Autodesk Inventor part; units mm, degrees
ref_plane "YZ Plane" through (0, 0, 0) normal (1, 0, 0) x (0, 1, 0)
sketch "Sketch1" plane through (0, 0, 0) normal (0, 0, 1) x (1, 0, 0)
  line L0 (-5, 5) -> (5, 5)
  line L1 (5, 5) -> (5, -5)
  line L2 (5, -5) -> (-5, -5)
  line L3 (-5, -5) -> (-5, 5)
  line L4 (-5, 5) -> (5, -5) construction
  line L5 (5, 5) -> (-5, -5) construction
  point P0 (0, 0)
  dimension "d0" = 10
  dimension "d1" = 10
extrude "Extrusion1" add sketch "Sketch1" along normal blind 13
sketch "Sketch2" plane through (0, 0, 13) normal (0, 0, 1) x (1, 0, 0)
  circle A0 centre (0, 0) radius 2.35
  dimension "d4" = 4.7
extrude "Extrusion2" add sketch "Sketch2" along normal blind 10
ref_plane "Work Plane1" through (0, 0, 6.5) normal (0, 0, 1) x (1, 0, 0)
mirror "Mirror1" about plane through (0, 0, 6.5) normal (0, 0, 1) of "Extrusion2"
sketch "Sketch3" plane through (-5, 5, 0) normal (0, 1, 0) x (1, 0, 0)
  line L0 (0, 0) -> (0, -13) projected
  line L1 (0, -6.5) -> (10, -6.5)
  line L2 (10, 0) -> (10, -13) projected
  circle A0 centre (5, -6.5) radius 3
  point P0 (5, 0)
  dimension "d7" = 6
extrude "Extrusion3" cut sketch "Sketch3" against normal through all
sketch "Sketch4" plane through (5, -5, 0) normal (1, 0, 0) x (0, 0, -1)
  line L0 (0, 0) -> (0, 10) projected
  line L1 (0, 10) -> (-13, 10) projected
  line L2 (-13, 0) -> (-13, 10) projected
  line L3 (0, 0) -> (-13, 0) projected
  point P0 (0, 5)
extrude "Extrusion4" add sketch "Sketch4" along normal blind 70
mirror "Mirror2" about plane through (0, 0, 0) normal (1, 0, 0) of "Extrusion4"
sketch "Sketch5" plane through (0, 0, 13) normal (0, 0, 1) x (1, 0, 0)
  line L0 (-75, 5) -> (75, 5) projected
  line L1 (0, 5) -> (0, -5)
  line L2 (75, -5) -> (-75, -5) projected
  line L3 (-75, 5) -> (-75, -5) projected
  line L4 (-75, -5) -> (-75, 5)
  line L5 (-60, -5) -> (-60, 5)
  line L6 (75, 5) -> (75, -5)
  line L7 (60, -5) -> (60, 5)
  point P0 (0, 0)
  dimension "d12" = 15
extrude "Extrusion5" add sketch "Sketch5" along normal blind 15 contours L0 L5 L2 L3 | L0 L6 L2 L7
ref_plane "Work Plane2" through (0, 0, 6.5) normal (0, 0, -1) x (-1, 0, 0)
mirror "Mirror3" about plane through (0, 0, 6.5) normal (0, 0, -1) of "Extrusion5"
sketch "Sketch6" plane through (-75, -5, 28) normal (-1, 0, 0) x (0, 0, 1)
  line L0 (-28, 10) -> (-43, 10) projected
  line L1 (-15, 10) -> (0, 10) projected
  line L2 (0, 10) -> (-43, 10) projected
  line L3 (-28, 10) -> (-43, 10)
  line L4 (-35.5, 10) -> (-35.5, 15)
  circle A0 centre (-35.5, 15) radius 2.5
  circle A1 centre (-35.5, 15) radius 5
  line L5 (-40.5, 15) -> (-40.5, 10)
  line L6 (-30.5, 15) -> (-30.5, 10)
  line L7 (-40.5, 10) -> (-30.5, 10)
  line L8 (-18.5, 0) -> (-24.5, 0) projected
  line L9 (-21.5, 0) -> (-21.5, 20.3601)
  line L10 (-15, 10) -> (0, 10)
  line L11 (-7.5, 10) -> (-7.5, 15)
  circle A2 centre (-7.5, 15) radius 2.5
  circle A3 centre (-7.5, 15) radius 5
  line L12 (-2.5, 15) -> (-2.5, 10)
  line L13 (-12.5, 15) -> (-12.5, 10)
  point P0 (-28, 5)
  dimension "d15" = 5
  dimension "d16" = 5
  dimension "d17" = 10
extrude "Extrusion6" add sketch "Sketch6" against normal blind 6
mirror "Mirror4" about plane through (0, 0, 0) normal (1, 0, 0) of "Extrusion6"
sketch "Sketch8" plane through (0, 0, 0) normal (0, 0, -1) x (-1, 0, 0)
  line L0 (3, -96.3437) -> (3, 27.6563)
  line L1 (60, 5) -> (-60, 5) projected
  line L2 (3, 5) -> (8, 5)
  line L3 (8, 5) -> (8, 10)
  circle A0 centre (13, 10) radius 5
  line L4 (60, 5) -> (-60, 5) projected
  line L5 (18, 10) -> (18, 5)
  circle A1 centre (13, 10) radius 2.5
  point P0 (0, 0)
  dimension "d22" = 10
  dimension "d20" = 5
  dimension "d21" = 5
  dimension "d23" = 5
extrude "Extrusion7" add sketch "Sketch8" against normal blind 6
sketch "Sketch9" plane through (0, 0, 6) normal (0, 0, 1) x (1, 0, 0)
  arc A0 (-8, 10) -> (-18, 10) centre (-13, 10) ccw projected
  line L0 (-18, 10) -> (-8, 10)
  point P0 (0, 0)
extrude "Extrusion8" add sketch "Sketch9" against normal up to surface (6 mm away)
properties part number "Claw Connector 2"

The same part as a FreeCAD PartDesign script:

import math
import FreeCAD as App
import Part
import Sketcher

V = App.Vector


def add_polygon(sketch, points):
    """Adds a closed chain of lines whose ends are joined by coincident constraints."""
    first, n = sketch.GeometryCount, len(points)
    for a, b in zip(points, points[1:] + points[:1]):
        sketch.addGeometry(Part.LineSegment(App.Vector(*a, 0), App.Vector(*b, 0)), False)
    for i in range(n):
        sketch.addConstraint(Sketcher.Constraint("Coincident", first + i, 2, first + (i + 1) % n, 1))

doc = App.newDocument("Part")
body = doc.addObject("PartDesign::Body", "Body")

sketch1 = body.newObject("Sketcher::SketchObject", "Sketch")
sketch1.AttachmentSupport = (doc.getObject("XY_Plane"), [""])
sketch1.MapMode = "FlatFace"
add_polygon(sketch1, [(5, 5), (-5, 5), (-5, -5), (5, -5)])
sketch1.addConstraint([
    Sketcher.Constraint("Horizontal", 0),
    Sketcher.Constraint("Vertical", 1),
    Sketcher.Constraint("Horizontal", 2),
    Sketcher.Constraint("Vertical", 3),
    Sketcher.Constraint("Symmetric", 0, 2, 2, 2, -1, 1),
    Sketcher.Constraint("Equal", 2, 1),
    Sketcher.Constraint("DistanceX", 0, 2, 0, 1, 10.0),
])
pad1 = body.newObject("PartDesign::Pad", "Pad")
pad1.Profile = sketch1
pad1.Length = 13

sketch2 = body.newObject("Sketcher::SketchObject", "Sketch001")
sketch2.AttachmentSupport = (doc.getObject("XY_Plane"), [""])
sketch2.MapMode = "FlatFace"
sketch2.AttachmentOffset = App.Placement(V(0, 0, 13), App.Rotation())
sketch2.addGeometry(Part.Circle(V(0, 0, 0), V(0, 0, 1), 2.4), False)
sketch2.addConstraint([
    Sketcher.Constraint("Coincident", 0, 3, -1, 1),
    Sketcher.Constraint("Diameter", 0, 4.7),
])
pad2 = body.newObject("PartDesign::Pad", "Pad001")
pad2.Profile = sketch2
pad2.Length = 10
doc.recompute()

datumplane = body.newObject("PartDesign::Plane", "DatumPlane")
datumplane.AttachmentSupport = (doc.getObject("XY_Plane"), [""])
datumplane.MapMode = "FlatFace"
datumplane.AttachmentOffset = App.Placement(V(0, 0, 6.5), App.Rotation())
mirrored = body.newObject("PartDesign::Mirrored", "Mirrored")
mirrored.Originals = [pad2]
mirrored.MirrorPlane = (datumplane, [""])
body.Tip = mirrored

sketch3 = body.newObject("Sketcher::SketchObject", "Sketch002")
sketch3.AttachmentSupport = (doc.getObject("XZ_Plane"), [""])
sketch3.MapMode = "FlatFace"
sketch3.AttachmentOffset = App.Placement(V(0, 0, -5), App.Rotation())
sketch3.addGeometry(Part.Circle(V(0, 6.5, 0), V(0, 0, 1), 3), False)
sketch3.addConstraint([
    Sketcher.Constraint("PointOnObject", 0, 3, -2),
    Sketcher.Constraint("Diameter", 0, 6.0),
    Sketcher.Constraint("DistanceY", -1, 1, 0, 3, 6.5),
])
pocket1 = body.newObject("PartDesign::Pocket", "Pocket")
pocket1.Profile = sketch3
pocket1.Type = "ThroughAll"
pocket1.Reversed = True

sketch4 = body.newObject("Sketcher::SketchObject", "Sketch003")
sketch4.AttachmentSupport = (doc.getObject("YZ_Plane"), [""])
sketch4.MapMode = "FlatFace"
sketch4.AttachmentOffset = App.Placement(V(0, 0, 5), App.Rotation())
add_polygon(sketch4, [(-5, 13), (-5, 0), (5, 0), (5, 13)])
sketch4.addConstraint([
    Sketcher.Constraint("Vertical", 0),
    Sketcher.Constraint("Horizontal", 1),
    Sketcher.Constraint("Vertical", 2),
    Sketcher.Constraint("Horizontal", 3),
    Sketcher.Constraint("Symmetric", 0, 2, 1, 2, -1, 1),
    Sketcher.Constraint("DistanceX", 1, 1, 1, 2, 10.0),
    Sketcher.Constraint("DistanceY", 0, 2, 0, 1, 13.0),
])
pad3 = body.newObject("PartDesign::Pad", "Pad002")
pad3.Profile = sketch4
pad3.Length = 70
doc.recompute()

mirrored2 = body.newObject("PartDesign::Mirrored", "Mirrored001")
mirrored2.Originals = [pad3]
mirrored2.MirrorPlane = (doc.getObject("YZ_Plane"), [""])
body.Tip = mirrored2

sketch5 = body.newObject("Sketcher::SketchObject", "Sketch004")
sketch5.AttachmentSupport = (doc.getObject("XY_Plane"), [""])
sketch5.MapMode = "FlatFace"
sketch5.AttachmentOffset = App.Placement(V(0, 0, 13), App.Rotation())
add_polygon(sketch5, [(-60, 5), (-75, 5), (-75, -5), (-60, -5)])
add_polygon(sketch5, [(75, 5), (60, 5), (60, -5), (75, -5)])
sketch5.addConstraint([
    Sketcher.Constraint("Horizontal", 0),
    Sketcher.Constraint("Vertical", 1),
    Sketcher.Constraint("Horizontal", 2),
    Sketcher.Constraint("Vertical", 3),
    Sketcher.Constraint("Horizontal", 4),
    Sketcher.Constraint("Vertical", 5),
    Sketcher.Constraint("Horizontal", 6),
    Sketcher.Constraint("Vertical", 7),
    Sketcher.Constraint("Symmetric", 2, 2, 4, 2, -1, 1),
    Sketcher.Constraint("Symmetric", 0, 2, 6, 2, -1, 1),
    Sketcher.Constraint("Horizontal", 3, 2, 4, 2),
    Sketcher.Constraint("DistanceX", 0, 2, 0, 1, 15.0),
    Sketcher.Constraint("DistanceY", 1, 2, 1, 1, 10.0),
    Sketcher.Constraint("DistanceX", 0, 2, -1, 1, 75.0),
])
pad4 = body.newObject("PartDesign::Pad", "Pad003")
pad4.Profile = sketch5
pad4.Length = 15
doc.recompute()

datumplane2 = body.newObject("PartDesign::Plane", "DatumPlane001")
datumplane2.AttachmentSupport = (doc.getObject("XY_Plane"), [""])
datumplane2.MapMode = "FlatFace"
datumplane2.AttachmentOffset = App.Placement(V(0, 0, 6.5), App.Rotation())
mirrored3 = body.newObject("PartDesign::Mirrored", "Mirrored002")
mirrored3.Originals = [pad4]
mirrored3.MirrorPlane = (datumplane2, [""])
body.Tip = mirrored3

sketch6 = body.newObject("Sketcher::SketchObject", "Sketch005")
sketch6.AttachmentSupport = (doc.getObject("YZ_Plane"), [""])
sketch6.MapMode = "FlatFace"
sketch6.AttachmentOffset = App.Placement(V(0, 0, -75), App.Rotation())
sketch6.addGeometry([
    Part.LineSegment(V(5, -7.5, 0), V(5, -2.5, 0)),
    Part.LineSegment(V(5, -2.5, 0), V(10, -2.5, 0)),
    Part.ArcOfCircle(Part.Circle(V(10, -7.5, 0), V(0, 0, 1), 5), math.radians(-90), math.radians(90)),
    Part.LineSegment(V(10, -12.5, 0), V(5, -12.5, 0)),
    Part.LineSegment(V(5, -12.5, 0), V(5, -7.5, 0)),
    Part.Circle(V(10, -7.5, 0), V(0, 0, 1), 2.5),
    Part.LineSegment(V(10, 15.5, 0), V(5, 15.5, 0)),
    Part.LineSegment(V(5, 15.5, 0), V(5, 20.5, 0)),
    Part.LineSegment(V(5, 20.5, 0), V(5, 25.5, 0)),
    Part.LineSegment(V(5, 25.5, 0), V(10, 25.5, 0)),
    Part.ArcOfCircle(Part.Circle(V(10, 20.5, 0), V(0, 0, 1), 5), math.radians(-90), math.radians(90)),
    Part.Circle(V(10, 20.5, 0), V(0, 0, 1), 2.5),
], False)
sketch6.addConstraint([
    Sketcher.Constraint("Coincident", 0, 2, 1, 1),
    Sketcher.Constraint("Tangent", 1, 2, 2, 2),
    Sketcher.Constraint("Tangent", 2, 1, 3, 1),
    Sketcher.Constraint("Coincident", 3, 2, 4, 1),
    Sketcher.Constraint("Coincident", 4, 2, 0, 1),
    Sketcher.Constraint("Coincident", 6, 2, 7, 1),
    Sketcher.Constraint("Coincident", 7, 2, 8, 1),
    Sketcher.Constraint("Coincident", 8, 2, 9, 1),
    Sketcher.Constraint("Tangent", 9, 2, 10, 2),
    Sketcher.Constraint("Tangent", 10, 1, 6, 1),
    Sketcher.Constraint("Vertical", 0),
    Sketcher.Constraint("Horizontal", 1),
    Sketcher.Constraint("Horizontal", 3),
    Sketcher.Constraint("Vertical", 4),
    Sketcher.Constraint("Horizontal", 6),
    Sketcher.Constraint("Vertical", 7),
    Sketcher.Constraint("Vertical", 8),
    Sketcher.Constraint("Horizontal", 9),
    Sketcher.Constraint("Coincident", 5, 3, 2, 3),
    Sketcher.Constraint("Coincident", 11, 3, 10, 3),
    Sketcher.Constraint("Equal", 2, 10),
    Sketcher.Constraint("Equal", 5, 11),
    Sketcher.Constraint("Horizontal", 5, 3, 4, 2),
    Sketcher.Constraint("Horizontal", 11, 3, 7, 2),
    Sketcher.Constraint("Vertical", 5, 3, 10, 3),
    Sketcher.Constraint("Vertical", 4, 2, 6, 2),
    Sketcher.Constraint("Equal", 9, 0),
    Sketcher.Constraint("Diameter", 5, 5.0),
    Sketcher.Constraint("Radius", 2, 5.0),
    Sketcher.Constraint("DistanceX", -1, 1, 2, 3, 10.0),
    Sketcher.Constraint("DistanceY", 2, 3, 10, 3, 28.0),
    Sketcher.Constraint("DistanceY", 2, 3, -1, 1, 7.5),
])
pad5 = body.newObject("PartDesign::Pad", "Pad004")
pad5.Profile = sketch6
pad5.Length = 6
doc.recompute()

mirrored4 = body.newObject("PartDesign::Mirrored", "Mirrored003")
mirrored4.Originals = [pad5]
mirrored4.MirrorPlane = (doc.getObject("YZ_Plane"), [""])
body.Tip = mirrored4

sketch7 = body.newObject("Sketcher::SketchObject", "Sketch006")
sketch7.AttachmentSupport = (doc.getObject("XY_Plane"), [""])
sketch7.MapMode = "FlatFace"
sketch7.addGeometry([
    Part.LineSegment(V(-18, 5, 0), V(-18, 10, 0)),
    Part.ArcOfCircle(Part.Circle(V(-13, 10, 0), V(0, 0, 1), 5), math.radians(0), math.radians(180)),
    Part.LineSegment(V(-8, 10, 0), V(-8, 5, 0)),
    Part.LineSegment(V(-8, 5, 0), V(-18, 5, 0)),
    Part.Circle(V(-13, 10, 0), V(0, 0, 1), 2.5),
], False)
sketch7.addConstraint([
    Sketcher.Constraint("Tangent", 0, 2, 1, 2),
    Sketcher.Constraint("Tangent", 1, 1, 2, 1),
    Sketcher.Constraint("Coincident", 2, 2, 3, 1),
    Sketcher.Constraint("Coincident", 3, 2, 0, 1),
    Sketcher.Constraint("Vertical", 0),
    Sketcher.Constraint("Vertical", 2),
    Sketcher.Constraint("Horizontal", 3),
    Sketcher.Constraint("Coincident", 4, 3, 1, 3),
    Sketcher.Constraint("Diameter", 4, 5.0),
    Sketcher.Constraint("Radius", 1, 5.0),
    Sketcher.Constraint("DistanceY", 0, 1, 0, 2, 5.0),
    Sketcher.Constraint("DistanceY", -1, 1, 1, 3, 10.0),
    Sketcher.Constraint("DistanceX", 1, 3, -1, 1, 13.0),
])
pad6 = body.newObject("PartDesign::Pad", "Pad005")
pad6.Profile = sketch7
pad6.Length = 6

sketch8 = body.newObject("Sketcher::SketchObject", "Sketch007")
sketch8.AttachmentSupport = (doc.getObject("XY_Plane"), [""])
sketch8.MapMode = "FlatFace"
sketch8.AttachmentOffset = App.Placement(V(0, 0, 6), App.Rotation())
sketch8.addGeometry([
    Part.LineSegment(V(-18, 10, 0), V(-8, 10, 0)),
    Part.ArcOfCircle(Part.Circle(V(-13, 10, 0), V(0, 0, 1), 5), math.radians(0), math.radians(180)),
], False)
sketch8.addConstraint([
    Sketcher.Constraint("Coincident", 0, 1, 1, 2),
    Sketcher.Constraint("Coincident", 1, 1, 0, 2),
    Sketcher.Constraint("Horizontal", 0),
    Sketcher.Constraint("Horizontal", 1, 3, 0, 1),
    Sketcher.Constraint("Radius", 1, 5.0),
    Sketcher.Constraint("DistanceX", 1, 3, -1, 1, 13.0),
    Sketcher.Constraint("DistanceY", -1, 1, 1, 3, 10.0),
])
pad7 = body.newObject("PartDesign::Pad", "Pad006")
pad7.Profile = sketch8
pad7.Length = 6
pad7.Reversed = True

doc.recompute()
